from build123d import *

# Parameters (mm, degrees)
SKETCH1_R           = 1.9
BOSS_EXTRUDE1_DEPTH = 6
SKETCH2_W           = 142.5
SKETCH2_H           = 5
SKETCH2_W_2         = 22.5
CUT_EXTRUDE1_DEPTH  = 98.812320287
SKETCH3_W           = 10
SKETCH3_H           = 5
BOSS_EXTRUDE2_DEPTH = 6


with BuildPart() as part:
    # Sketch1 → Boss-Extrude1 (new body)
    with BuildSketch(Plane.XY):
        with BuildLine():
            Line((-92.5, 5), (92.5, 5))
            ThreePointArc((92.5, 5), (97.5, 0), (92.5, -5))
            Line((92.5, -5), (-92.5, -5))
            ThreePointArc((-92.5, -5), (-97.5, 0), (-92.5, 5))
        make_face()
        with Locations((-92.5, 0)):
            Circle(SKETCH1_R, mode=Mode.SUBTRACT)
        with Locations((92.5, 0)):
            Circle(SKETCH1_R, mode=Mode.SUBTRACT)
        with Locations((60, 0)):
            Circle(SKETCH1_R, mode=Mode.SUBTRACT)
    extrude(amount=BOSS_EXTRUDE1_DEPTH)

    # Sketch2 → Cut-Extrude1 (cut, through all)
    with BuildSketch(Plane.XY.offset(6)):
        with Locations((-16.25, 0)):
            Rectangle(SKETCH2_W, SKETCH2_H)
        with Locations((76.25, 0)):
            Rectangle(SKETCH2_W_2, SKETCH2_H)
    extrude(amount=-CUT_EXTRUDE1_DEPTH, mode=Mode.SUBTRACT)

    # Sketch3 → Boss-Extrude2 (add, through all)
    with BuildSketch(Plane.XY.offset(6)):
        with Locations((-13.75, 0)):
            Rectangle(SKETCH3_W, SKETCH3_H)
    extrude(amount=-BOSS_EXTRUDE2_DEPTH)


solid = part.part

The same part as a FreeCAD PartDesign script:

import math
import FreeCAD as App
import Part
import Sketcher

V = App.Vector

doc = App.newDocument("Part")
params = doc.addObject("Spreadsheet::Sheet", "Params")
for row, (alias, value) in enumerate([
    ("sketch1_radius", "5 mm"),
    ("sketch1_diameter", "3.8 mm"),
    ("sketch1_width", "185 mm"),
    ("pad1_length", "6 mm"),
    ("sketch2_height", "5 mm"),
    ("sketch2_width", "142.5 mm"),
    ("sketch2_width2", "22.5 mm"),
    ("sketch3_width", "10 mm"),
    ("sketch3_height", "5 mm"),
    ("pad2_length", "6 mm"),
], start=1):
    params.set(f"A{row}", alias)
    params.set(f"B{row}", "=" + value)
    params.setAlias(f"B{row}", alias)

body = doc.addObject("PartDesign::Body", "Body")

# Sketch on XY plane
sketch1 = body.newObject("Sketcher::SketchObject", "Sketch")
sketch1.AttachmentSupport = (doc.getObject("XY_Plane"), [""])
sketch1.MapMode = "FlatFace"
sketch1.addGeometry([
    Part.LineSegment(V(92.5, 5, 0), V(-92.5, 5, 0)),  # 0
    Part.ArcOfCircle(Part.Circle(V(-92.5, 0, 0), V(0, 0, 1), 5), math.radians(90), math.radians(270)),  # 1
    Part.LineSegment(V(-92.5, -5, 0), V(92.5, -5, 0)),  # 2
    Part.ArcOfCircle(Part.Circle(V(92.5, 0, 0), V(0, 0, 1), 5), math.radians(-90), math.radians(90)),  # 3
    Part.Circle(V(92.5, 0, 0), V(0, 0, 1), 1.9),  # 4
    Part.Circle(V(60, 0, 0), V(0, 0, 1), 1.9),  # 5
    Part.Circle(V(-92.5, 0, 0), V(0, 0, 1), 1.9),  # 6
], False)
sketch1.addConstraint([
    Sketcher.Constraint("Tangent", 0, 2, 1, 1),
    Sketcher.Constraint("Tangent", 1, 2, 2, 1),
    Sketcher.Constraint("Tangent", 2, 2, 3, 1),
    Sketcher.Constraint("Tangent", 3, 2, 0, 1),
    Sketcher.Constraint("Horizontal", 0),
    Sketcher.Constraint("Horizontal", 2),
    Sketcher.Constraint("Coincident", 4, 3, 3, 3),
    Sketcher.Constraint("Coincident", 6, 3, 1, 3),
    Sketcher.Constraint("Equal", 4, 5),
    Sketcher.Constraint("Equal", 5, 6),
    Sketcher.Constraint("Symmetric", 1, 3, 3, 3, -1, 1),
    Sketcher.Constraint("PointOnObject", 5, 3, -1),
    Sketcher.Constraint("Radius", 1, 5.0),
    Sketcher.Constraint("Diameter", 4, 3.8),
    Sketcher.Constraint("DistanceX", 0, 2, 0, 1, 185.0),
    Sketcher.Constraint("DistanceX", -1, 1, 5, 3, 60.0),
])
sketch1.setExpression("Constraints[12]", "Params.sketch1_radius")
sketch1.setExpression("Constraints[13]", "Params.sketch1_diameter")
sketch1.setExpression("Constraints[14]", "Params.sketch1_width")
pad1 = body.newObject("PartDesign::Pad", "Pad")
pad1.Profile = sketch1
pad1.setExpression("Length", "Params.pad1_length")

# Sketch on XY plane
sketch2 = body.newObject("Sketcher::SketchObject", "Sketch001")
sketch2.AttachmentSupport = (doc.getObject("XY_Plane"), [""])
sketch2.MapMode = "FlatFace"
sketch2.AttachmentOffset = App.Placement(V(0, 0, 6), App.Rotation())
sketch2.addGeometry([
    Part.LineSegment(V(-88, 2, 0), V(-88, -2, 0)),  # 0
    Part.LineSegment(V(-88, -2, 0), V(55, -2, 0)),  # 1
    Part.LineSegment(V(55, -2, 0), V(55, 2, 0)),  # 2
    Part.LineSegment(V(55, 2, 0), V(-88, 2, 0)),  # 3
    Part.LineSegment(V(65, 2, 0), V(65, -2, 0)),  # 4
    Part.LineSegment(V(65, -2, 0), V(88, -2, 0)),  # 5
    Part.LineSegment(V(88, -2, 0), V(88, 2, 0)),  # 6
    Part.LineSegment(V(88, 2, 0), V(65, 2, 0)),  # 7
], False)
sketch2.addConstraint([
    Sketcher.Constraint("Coincident", 0, 2, 1, 1),
    Sketcher.Constraint("Coincident", 1, 2, 2, 1),
    Sketcher.Constraint("Coincident", 2, 2, 3, 1),
    Sketcher.Constraint("Coincident", 3, 2, 0, 1),
    Sketcher.Constraint("Coincident", 4, 2, 5, 1),
    Sketcher.Constraint("Coincident", 5, 2, 6, 1),
    Sketcher.Constraint("Coincident", 6, 2, 7, 1),
    Sketcher.Constraint("Coincident", 7, 2, 4, 1),
    Sketcher.Constraint("Vertical", 0),
    Sketcher.Constraint("Horizontal", 1),
    Sketcher.Constraint("Vertical", 2),
    Sketcher.Constraint("Horizontal", 3),
    Sketcher.Constraint("Vertical", 4),
    Sketcher.Constraint("Horizontal", 5),
    Sketcher.Constraint("Vertical", 6),
    Sketcher.Constraint("Horizontal", 7),
    Sketcher.Constraint("Symmetric", 3, 2, 5, 2, -1, 1),
    Sketcher.Constraint("Horizontal", 1, 2, 4, 2),
    Sketcher.Constraint("Horizontal", 3, 2, 6, 2),
    Sketcher.Constraint("DistanceY", 0, 2, 0, 1, 5.0),
    Sketcher.Constraint("DistanceX", 1, 1, 1, 2, 142.5),
    Sketcher.Constraint("DistanceX", 5, 1, 5, 2, 22.5),
    Sketcher.Constraint("DistanceX", -1, 1, 1, 2, 55.0),
])
sketch2.setExpression("Constraints[19]", "Params.sketch2_height")
sketch2.setExpression("Constraints[20]", "Params.sketch2_width")
sketch2.setExpression("Constraints[21]", "Params.sketch2_width2")
pocket1 = body.newObject("PartDesign::Pocket", "Pocket")
pocket1.Profile = sketch2
pocket1.Type = "ThroughAll"

# Sketch on XY plane
sketch3 = body.newObject("Sketcher::SketchObject", "Sketch002")
sketch3.AttachmentSupport = (doc.getObject("XY_Plane"), [""])
sketch3.MapMode = "FlatFace"
sketch3.AttachmentOffset = App.Placement(V(0, 0, 6), App.Rotation())
sketch3.addGeometry([
    Part.LineSegment(V(-19, 2, 0), V(-19, -2, 0)),
    Part.LineSegment(V(-19, -2, 0), V(-9, -2, 0)),
    Part.LineSegment(V(-9, -2, 0), V(-9, 2, 0)),
    Part.LineSegment(V(-9, 2, 0), V(-19, 2, 0)),
], False)
sketch3.addConstraint([
    Sketcher.Constraint("Coincident", 0, 2, 1, 1),
    Sketcher.Constraint("Coincident", 1, 2, 2, 1),
    Sketcher.Constraint("Coincident", 2, 2, 3, 1),
    Sketcher.Constraint("Coincident", 3, 2, 0, 1),
    Sketcher.Constraint("Vertical", 0),
    Sketcher.Constraint("Horizontal", 1),
    Sketcher.Constraint("Vertical", 2),
    Sketcher.Constraint("Horizontal", 3),
    Sketcher.Constraint("DistanceX", 1, 1, 1, 2, 10.0),
    Sketcher.Constraint("DistanceY", 0, 2, 0, 1, 5.0),
    Sketcher.Constraint("DistanceY", 0, 2, -1, 1, 2.5),
    Sketcher.Constraint("DistanceX", 0, 2, -1, 1, 18.75),
])
sketch3.setExpression("Constraints[8]", "Params.sketch3_width")
sketch3.setExpression("Constraints[9]", "Params.sketch3_height")
pad2 = body.newObject("PartDesign::Pad", "Pad001")
pad2.Profile = sketch3
pad2.setExpression("Length", "Params.pad2_length")
pad2.Reversed = True

doc.recompute()
